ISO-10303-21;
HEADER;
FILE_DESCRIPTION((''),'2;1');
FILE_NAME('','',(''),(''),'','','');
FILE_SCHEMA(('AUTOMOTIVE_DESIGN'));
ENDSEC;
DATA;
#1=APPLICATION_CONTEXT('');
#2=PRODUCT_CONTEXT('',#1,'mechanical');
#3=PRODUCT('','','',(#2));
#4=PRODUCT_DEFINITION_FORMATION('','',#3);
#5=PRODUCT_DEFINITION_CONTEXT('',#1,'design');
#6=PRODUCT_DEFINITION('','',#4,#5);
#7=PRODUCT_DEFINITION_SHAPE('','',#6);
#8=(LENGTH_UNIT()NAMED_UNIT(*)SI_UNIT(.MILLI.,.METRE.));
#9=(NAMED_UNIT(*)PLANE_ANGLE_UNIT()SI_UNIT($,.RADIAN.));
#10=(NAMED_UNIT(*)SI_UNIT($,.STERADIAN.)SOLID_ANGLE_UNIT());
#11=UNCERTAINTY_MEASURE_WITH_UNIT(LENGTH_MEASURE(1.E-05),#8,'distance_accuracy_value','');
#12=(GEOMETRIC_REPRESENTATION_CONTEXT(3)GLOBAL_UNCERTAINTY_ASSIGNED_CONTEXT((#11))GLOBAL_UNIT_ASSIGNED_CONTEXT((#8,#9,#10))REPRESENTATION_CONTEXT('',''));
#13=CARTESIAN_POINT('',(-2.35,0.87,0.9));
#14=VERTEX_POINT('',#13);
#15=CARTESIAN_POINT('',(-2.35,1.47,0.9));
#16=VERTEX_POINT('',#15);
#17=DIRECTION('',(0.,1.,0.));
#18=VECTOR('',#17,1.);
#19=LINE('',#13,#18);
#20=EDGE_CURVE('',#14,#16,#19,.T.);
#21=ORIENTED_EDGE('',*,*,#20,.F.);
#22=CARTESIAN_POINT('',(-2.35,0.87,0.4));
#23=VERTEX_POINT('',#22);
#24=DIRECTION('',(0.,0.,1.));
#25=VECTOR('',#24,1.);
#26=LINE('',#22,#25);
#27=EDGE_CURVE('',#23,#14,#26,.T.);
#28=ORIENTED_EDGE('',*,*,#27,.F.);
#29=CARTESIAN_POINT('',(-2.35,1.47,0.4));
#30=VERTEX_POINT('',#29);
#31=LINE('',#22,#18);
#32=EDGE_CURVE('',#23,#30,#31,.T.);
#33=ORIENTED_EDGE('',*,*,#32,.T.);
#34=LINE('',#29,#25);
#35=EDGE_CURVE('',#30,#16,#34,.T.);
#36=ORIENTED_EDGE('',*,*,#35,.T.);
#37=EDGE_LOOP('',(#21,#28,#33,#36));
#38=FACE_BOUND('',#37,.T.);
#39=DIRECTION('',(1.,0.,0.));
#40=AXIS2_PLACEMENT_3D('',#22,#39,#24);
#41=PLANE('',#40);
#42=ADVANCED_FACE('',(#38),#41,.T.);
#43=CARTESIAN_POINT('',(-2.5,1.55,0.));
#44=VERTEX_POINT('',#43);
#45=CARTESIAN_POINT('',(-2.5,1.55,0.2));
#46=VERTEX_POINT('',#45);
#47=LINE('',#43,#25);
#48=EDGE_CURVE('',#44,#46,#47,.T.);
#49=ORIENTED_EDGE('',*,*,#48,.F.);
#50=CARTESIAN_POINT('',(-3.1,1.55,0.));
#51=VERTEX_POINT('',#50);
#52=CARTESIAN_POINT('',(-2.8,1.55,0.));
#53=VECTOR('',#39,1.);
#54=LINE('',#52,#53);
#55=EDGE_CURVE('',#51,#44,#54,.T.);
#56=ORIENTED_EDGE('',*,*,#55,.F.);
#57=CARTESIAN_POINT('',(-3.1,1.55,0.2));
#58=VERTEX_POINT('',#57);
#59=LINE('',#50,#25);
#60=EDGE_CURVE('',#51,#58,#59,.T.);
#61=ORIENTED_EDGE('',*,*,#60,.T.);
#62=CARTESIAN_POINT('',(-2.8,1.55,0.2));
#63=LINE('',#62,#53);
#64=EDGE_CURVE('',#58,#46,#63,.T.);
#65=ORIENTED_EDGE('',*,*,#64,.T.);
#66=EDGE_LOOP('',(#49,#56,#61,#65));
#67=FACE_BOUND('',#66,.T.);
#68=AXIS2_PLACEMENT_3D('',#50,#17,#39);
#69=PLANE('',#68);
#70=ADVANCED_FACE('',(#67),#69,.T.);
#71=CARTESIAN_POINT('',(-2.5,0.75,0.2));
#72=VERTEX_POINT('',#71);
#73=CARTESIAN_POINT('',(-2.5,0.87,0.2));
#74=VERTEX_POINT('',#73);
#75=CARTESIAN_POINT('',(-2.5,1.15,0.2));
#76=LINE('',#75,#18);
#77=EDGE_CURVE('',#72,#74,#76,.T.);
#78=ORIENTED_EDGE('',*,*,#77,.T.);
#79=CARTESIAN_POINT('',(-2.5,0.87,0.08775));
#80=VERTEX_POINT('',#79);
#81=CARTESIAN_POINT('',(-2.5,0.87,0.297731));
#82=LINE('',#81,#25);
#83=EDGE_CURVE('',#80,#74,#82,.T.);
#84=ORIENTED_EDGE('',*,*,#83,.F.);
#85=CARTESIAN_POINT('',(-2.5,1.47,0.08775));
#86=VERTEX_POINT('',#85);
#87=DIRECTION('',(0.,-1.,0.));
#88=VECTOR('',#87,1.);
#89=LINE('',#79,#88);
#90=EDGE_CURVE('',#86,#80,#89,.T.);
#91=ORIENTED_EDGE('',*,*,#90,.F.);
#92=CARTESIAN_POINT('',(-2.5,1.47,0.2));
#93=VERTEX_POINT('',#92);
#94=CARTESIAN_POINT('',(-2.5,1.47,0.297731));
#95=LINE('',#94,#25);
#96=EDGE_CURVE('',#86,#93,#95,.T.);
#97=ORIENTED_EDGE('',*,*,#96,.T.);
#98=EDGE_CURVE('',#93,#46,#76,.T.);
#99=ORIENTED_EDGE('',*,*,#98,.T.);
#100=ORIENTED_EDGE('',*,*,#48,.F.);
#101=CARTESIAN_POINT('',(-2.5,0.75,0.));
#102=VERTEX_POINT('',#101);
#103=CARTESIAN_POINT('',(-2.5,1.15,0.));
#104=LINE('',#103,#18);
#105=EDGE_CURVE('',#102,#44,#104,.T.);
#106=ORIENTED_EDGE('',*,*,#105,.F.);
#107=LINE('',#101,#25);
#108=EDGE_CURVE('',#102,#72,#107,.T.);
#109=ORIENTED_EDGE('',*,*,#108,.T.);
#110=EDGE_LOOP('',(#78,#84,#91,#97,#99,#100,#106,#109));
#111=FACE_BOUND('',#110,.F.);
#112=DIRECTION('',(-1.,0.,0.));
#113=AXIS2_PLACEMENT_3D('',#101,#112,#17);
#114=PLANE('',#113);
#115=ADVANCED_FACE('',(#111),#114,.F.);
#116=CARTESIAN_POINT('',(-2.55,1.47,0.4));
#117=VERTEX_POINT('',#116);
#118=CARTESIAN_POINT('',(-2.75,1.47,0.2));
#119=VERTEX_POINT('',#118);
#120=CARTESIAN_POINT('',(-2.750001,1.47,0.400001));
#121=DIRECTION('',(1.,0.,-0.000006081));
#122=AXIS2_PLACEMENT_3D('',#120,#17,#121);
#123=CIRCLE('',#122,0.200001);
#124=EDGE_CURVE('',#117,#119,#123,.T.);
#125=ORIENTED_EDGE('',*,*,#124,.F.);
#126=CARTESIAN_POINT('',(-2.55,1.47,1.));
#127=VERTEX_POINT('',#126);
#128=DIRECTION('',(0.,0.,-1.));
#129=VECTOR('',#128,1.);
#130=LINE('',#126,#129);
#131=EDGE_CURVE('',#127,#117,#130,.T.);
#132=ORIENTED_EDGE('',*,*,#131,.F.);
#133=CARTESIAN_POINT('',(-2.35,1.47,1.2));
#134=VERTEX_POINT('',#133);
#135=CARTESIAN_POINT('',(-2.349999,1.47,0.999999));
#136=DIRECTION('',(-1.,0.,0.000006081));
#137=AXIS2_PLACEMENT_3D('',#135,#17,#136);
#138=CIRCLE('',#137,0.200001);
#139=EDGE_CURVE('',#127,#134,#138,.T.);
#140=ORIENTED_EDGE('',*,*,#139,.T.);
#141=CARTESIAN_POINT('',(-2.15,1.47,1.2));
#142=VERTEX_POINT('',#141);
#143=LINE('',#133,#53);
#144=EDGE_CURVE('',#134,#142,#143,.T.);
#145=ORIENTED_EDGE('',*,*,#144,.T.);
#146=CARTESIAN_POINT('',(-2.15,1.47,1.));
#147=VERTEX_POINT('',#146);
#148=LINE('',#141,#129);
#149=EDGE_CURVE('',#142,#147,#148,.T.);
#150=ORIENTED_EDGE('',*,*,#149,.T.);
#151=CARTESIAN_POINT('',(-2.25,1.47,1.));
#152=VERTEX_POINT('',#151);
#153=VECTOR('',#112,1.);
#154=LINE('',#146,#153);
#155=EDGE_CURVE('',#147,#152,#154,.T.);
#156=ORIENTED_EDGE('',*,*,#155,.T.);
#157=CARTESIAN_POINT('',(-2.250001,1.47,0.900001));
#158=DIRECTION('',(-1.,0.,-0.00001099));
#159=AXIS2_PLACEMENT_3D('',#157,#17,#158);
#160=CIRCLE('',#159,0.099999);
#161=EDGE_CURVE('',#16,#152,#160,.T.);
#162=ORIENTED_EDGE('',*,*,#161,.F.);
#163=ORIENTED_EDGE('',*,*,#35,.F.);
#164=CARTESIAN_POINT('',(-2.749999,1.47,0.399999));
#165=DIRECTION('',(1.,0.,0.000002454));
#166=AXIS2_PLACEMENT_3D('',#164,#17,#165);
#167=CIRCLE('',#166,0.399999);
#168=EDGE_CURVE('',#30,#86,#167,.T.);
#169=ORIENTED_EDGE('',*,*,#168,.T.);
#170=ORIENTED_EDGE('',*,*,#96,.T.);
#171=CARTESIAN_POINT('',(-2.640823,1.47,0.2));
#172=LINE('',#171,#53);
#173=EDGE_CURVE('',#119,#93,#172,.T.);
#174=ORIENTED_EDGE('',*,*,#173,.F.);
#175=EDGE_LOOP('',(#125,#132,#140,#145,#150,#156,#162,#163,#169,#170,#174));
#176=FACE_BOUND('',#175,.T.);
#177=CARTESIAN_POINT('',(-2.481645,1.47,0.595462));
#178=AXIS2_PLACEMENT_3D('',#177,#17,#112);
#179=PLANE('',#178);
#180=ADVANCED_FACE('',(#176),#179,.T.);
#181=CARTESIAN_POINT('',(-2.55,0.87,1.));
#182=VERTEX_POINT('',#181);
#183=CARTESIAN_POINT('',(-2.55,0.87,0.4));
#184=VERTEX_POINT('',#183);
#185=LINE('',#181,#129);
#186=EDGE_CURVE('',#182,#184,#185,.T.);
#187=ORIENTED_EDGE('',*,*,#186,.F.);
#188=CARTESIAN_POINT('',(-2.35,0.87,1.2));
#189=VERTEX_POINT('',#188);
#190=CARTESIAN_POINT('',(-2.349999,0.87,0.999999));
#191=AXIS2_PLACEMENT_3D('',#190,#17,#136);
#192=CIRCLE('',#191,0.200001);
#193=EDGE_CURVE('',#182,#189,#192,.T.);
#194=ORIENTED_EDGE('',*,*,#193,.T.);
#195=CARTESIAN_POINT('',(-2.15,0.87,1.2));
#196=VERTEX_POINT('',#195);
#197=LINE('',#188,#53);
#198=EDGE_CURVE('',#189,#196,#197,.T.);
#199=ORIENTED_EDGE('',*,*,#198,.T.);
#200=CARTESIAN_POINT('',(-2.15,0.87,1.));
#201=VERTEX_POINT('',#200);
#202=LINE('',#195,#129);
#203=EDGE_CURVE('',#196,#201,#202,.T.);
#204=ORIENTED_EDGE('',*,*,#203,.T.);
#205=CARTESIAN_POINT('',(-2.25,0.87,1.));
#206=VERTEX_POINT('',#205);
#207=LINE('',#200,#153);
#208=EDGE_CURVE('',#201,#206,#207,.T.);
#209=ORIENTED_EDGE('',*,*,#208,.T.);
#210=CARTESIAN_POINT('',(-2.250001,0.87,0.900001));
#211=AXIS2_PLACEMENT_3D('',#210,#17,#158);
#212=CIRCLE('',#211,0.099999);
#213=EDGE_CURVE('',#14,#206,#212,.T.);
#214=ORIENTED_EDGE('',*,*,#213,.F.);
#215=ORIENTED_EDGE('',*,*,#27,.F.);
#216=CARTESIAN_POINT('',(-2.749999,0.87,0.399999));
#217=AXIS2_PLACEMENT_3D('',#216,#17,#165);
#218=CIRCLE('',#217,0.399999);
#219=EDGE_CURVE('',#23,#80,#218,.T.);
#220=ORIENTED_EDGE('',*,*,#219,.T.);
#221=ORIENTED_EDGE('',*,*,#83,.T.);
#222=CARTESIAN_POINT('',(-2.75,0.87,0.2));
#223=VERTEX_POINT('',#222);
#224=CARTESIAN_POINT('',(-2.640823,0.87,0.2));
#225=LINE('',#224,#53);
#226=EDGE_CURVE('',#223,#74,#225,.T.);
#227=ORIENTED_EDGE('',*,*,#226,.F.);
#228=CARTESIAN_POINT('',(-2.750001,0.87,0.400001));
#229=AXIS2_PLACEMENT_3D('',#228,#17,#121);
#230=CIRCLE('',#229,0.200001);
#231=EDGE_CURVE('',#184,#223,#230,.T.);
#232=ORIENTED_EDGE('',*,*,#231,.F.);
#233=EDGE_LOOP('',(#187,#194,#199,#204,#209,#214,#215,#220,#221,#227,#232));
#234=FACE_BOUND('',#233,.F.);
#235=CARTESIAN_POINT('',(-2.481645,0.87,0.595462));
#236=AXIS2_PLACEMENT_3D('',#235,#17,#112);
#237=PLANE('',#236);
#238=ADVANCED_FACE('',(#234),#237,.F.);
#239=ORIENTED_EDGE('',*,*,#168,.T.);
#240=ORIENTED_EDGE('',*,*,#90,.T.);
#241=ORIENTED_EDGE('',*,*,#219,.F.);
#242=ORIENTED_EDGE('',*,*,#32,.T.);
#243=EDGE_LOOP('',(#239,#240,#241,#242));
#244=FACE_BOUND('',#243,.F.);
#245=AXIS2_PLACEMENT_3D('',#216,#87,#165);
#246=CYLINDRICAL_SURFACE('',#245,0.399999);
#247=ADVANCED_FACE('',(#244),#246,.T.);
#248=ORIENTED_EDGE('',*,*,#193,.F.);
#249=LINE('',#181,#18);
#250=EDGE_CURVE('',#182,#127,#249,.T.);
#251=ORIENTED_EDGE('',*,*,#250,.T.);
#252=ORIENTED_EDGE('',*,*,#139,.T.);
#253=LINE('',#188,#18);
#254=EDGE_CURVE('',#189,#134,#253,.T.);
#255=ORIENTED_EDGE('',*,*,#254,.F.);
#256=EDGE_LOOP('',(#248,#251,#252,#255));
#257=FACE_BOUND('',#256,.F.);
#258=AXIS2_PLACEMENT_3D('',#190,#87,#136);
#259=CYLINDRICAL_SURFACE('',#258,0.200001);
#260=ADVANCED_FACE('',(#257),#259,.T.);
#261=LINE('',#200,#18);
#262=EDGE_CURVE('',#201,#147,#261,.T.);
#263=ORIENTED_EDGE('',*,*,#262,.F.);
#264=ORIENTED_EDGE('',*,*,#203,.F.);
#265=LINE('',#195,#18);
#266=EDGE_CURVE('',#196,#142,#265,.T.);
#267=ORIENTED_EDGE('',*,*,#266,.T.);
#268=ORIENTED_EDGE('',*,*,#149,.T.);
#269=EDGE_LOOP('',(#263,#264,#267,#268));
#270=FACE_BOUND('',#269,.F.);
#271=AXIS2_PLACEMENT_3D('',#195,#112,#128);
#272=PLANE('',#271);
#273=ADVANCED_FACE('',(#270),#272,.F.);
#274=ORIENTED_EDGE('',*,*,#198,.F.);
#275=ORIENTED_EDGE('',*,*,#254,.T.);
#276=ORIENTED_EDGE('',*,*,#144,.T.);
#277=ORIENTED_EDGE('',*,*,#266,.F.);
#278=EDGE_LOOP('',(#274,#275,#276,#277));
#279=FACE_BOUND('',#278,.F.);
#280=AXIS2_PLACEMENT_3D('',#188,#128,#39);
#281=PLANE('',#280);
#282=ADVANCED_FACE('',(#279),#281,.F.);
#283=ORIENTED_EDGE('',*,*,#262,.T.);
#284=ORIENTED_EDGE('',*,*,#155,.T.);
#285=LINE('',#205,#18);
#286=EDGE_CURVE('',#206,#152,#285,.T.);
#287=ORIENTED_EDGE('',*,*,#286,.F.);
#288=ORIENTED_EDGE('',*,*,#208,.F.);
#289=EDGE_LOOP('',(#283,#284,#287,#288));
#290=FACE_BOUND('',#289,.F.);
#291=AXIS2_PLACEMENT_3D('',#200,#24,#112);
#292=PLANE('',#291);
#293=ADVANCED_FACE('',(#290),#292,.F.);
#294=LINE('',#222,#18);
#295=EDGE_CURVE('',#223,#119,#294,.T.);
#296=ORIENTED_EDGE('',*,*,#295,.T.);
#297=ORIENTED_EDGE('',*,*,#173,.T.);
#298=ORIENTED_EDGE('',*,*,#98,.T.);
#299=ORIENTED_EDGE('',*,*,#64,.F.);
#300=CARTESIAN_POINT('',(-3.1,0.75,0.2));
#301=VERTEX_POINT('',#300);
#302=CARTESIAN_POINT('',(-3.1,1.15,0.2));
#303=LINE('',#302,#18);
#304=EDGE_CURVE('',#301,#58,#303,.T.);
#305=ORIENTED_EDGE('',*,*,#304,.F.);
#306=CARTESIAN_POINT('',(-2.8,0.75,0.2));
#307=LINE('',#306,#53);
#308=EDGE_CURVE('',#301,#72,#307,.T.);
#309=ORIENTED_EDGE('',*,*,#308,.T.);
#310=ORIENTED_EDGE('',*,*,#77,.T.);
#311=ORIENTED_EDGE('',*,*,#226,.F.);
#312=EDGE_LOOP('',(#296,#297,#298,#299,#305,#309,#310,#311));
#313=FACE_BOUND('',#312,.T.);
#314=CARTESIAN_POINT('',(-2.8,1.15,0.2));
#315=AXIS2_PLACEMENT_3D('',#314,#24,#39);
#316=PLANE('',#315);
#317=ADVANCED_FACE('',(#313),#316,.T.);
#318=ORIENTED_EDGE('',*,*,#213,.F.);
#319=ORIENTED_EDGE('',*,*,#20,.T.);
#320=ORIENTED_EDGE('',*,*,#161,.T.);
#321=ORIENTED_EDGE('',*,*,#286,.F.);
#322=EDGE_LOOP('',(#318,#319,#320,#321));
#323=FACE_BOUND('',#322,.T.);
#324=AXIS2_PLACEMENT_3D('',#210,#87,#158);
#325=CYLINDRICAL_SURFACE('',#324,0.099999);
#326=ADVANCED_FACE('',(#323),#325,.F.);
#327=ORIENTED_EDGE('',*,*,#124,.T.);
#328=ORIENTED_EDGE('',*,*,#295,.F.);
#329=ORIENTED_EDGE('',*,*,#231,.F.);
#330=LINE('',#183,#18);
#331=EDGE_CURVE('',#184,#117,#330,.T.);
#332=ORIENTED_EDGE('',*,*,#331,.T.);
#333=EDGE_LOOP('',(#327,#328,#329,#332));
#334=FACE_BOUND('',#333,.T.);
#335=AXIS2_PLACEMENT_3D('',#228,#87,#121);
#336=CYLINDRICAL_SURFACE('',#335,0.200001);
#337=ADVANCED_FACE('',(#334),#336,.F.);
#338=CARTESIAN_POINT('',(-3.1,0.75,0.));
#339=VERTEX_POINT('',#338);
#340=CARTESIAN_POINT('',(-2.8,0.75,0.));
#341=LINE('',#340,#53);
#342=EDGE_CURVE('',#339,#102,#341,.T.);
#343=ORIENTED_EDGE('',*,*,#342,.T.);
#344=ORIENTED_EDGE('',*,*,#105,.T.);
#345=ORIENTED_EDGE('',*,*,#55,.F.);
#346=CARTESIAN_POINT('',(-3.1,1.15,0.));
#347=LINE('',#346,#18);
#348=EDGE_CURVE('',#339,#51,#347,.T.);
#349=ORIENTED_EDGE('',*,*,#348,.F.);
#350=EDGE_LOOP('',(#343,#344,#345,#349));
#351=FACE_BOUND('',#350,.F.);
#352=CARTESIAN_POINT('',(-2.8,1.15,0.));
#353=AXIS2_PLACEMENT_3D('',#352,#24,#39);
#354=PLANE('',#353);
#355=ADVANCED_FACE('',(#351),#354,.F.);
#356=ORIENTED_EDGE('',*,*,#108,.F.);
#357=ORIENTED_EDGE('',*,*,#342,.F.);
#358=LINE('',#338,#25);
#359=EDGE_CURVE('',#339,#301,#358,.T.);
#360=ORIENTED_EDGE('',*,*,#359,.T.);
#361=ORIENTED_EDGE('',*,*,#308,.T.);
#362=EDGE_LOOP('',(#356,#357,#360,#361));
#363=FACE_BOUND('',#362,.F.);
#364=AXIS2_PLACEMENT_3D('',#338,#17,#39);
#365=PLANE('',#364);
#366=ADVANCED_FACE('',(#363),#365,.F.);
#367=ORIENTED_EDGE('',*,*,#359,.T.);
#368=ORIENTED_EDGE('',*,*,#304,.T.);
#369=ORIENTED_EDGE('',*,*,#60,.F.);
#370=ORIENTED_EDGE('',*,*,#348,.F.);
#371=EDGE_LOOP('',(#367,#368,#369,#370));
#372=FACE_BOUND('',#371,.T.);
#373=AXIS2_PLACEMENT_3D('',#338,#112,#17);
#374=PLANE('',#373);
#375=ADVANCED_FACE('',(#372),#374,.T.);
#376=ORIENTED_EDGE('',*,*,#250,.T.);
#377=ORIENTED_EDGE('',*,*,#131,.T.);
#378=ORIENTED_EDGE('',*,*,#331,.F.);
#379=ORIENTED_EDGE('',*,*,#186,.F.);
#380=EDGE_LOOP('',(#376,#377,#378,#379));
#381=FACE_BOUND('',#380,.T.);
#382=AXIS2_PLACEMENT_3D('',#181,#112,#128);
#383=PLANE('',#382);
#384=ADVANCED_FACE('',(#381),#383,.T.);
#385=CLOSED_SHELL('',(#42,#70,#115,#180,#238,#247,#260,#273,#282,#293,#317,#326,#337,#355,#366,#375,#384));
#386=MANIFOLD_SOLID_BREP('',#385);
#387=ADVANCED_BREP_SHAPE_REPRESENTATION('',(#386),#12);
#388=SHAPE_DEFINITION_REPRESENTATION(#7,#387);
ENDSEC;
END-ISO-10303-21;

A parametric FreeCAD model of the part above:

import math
import FreeCAD as App
import Part
import Sketcher
from FreeCAD import Vector
Q = App.Units.Quantity

doc = App.newDocument("Part")
body = doc.addObject("PartDesign::Body", "Body")

sketch1 = doc.addObject("Sketcher::SketchObject", "Sketch")
body.addObject(sketch1)
sketch1.AttachmentSupport = (doc.XY_Plane, [""])
sketch1.MapMode = "FlatFace"
sketch1.addGeometry(Part.LineSegment(Vector(-3.1, 1.55, 0), Vector(-3.1, 0.75, 0)), False)
sketch1.addGeometry(Part.LineSegment(Vector(-3.1, 0.75, 0), Vector(-2.5, 0.75, 0)), False)
sketch1.addGeometry(Part.LineSegment(Vector(-2.5, 0.75, 0), Vector(-2.5, 1.55, 0)), False)
sketch1.addGeometry(Part.LineSegment(Vector(-2.5, 1.55, 0), Vector(-3.1, 1.55, 0)), False)
sketch1.addConstraint(Sketcher.Constraint("Coincident", 0, 2, 1, 1))
sketch1.addConstraint(Sketcher.Constraint("Coincident", 1, 2, 2, 1))
sketch1.addConstraint(Sketcher.Constraint("Coincident", 2, 2, 3, 1))
sketch1.addConstraint(Sketcher.Constraint("Coincident", 3, 2, 0, 1))
sketch1.addConstraint(Sketcher.Constraint("Vertical", 0))
sketch1.addConstraint(Sketcher.Constraint("Horizontal", 1))
sketch1.addConstraint(Sketcher.Constraint("Vertical", 2))
sketch1.addConstraint(Sketcher.Constraint("Horizontal", 3))
sketch1.addConstraint(Sketcher.Constraint("DistanceX", 1, 1, 1, 2, Q("0.6 mm")))
sketch1.addConstraint(Sketcher.Constraint("DistanceY", 0, 2, 0, 1, Q("0.8 mm")))
sketch1.addConstraint(Sketcher.Constraint("DistanceX", 0, 2, -1, 1, Q("3.1 mm")))
sketch1.addConstraint(Sketcher.Constraint("DistanceY", -1, 1, 0, 2, Q("0.75 mm")))
pad1 = doc.addObject("PartDesign::Pad", "Pad")
body.addObject(pad1)
pad1.Profile = sketch1
pad1.Length = 0.2
body2 = doc.addObject("PartDesign::Body", "Body001")

sketch2 = doc.addObject("Sketcher::SketchObject", "Sketch001")
body2.addObject(sketch2)
sketch2.AttachmentSupport = (doc.getObject("XZ_Plane001"), [""])
sketch2.MapMode = "FlatFace"
sketch2.addGeometry(Part.ArcOfCircle(Part.Circle(Vector(3.499999, 0.999999, 0), Vector(0, 0, 1), 0.200001), math.radians(0.000348), math.radians(89.999652)), False)
sketch2.addGeometry(Part.LineSegment(Vector(3.5, 1.2, 0), Vector(3.3, 1.2, 0)), False)
sketch2.addGeometry(Part.LineSegment(Vector(3.3, 1.2, 0), Vector(3.3, 1, 0)), False)
sketch2.addGeometry(Part.LineSegment(Vector(3.3, 1, 0), Vector(3.4, 1, 0)), False)
sketch2.addGeometry(Part.ArcOfCircle(Part.Circle(Vector(3.400001, 0.900001, 0), Vector(0, 0, 1), 0.099999), math.radians(-0.00063), math.radians(90.00063)), False)
sketch2.addGeometry(Part.LineSegment(Vector(3.5, 0.9, 0), Vector(3.5, 0.4, 0)), False)
sketch2.addGeometry(Part.ArcOfCircle(Part.Circle(Vector(3.899999, 0.399999, 0), Vector(0, 0, 1), 0.399999), math.radians(179.999859), math.radians(270.000141)), False)
sketch2.addGeometry(Part.LineSegment(Vector(3.9, 0, 0), Vector(4, 0, 0)), False)
sketch2.addGeometry(Part.LineSegment(Vector(4, 0, 0), Vector(4, 0.2, 0)), False)
sketch2.addGeometry(Part.LineSegment(Vector(4, 0.2, 0), Vector(3.9, 0.2, 0)), False)
sketch2.addGeometry(Part.ArcOfCircle(Part.Circle(Vector(3.900001, 0.400001, 0), Vector(0, 0, 1), 0.200001), math.radians(-179.999652), math.radians(-90.000348)), False)
sketch2.addGeometry(Part.LineSegment(Vector(3.7, 0.4, 0), Vector(3.7, 1, 0)), False)
sketch2.addConstraint(Sketcher.Constraint("Coincident", 0, 2, 1, 1))
sketch2.addConstraint(Sketcher.Constraint("Coincident", 1, 2, 2, 1))
sketch2.addConstraint(Sketcher.Constraint("Coincident", 2, 2, 3, 1))
sketch2.addConstraint(Sketcher.Constraint("Coincident", 3, 2, 4, 2))
sketch2.addConstraint(Sketcher.Constraint("Coincident", 4, 1, 5, 1))
sketch2.addConstraint(Sketcher.Constraint("Coincident", 5, 2, 6, 1))
sketch2.addConstraint(Sketcher.Constraint("Coincident", 6, 2, 7, 1))
sketch2.addConstraint(Sketcher.Constraint("Coincident", 7, 2, 8, 1))
sketch2.addConstraint(Sketcher.Constraint("Coincident", 8, 2, 9, 1))
sketch2.addConstraint(Sketcher.Constraint("Coincident", 9, 2, 10, 2))
sketch2.addConstraint(Sketcher.Constraint("Coincident", 10, 1, 11, 1))
sketch2.addConstraint(Sketcher.Constraint("Coincident", 11, 2, 0, 1))
sketch2.addConstraint(Sketcher.Constraint("Horizontal", 1))
sketch2.addConstraint(Sketcher.Constraint("Vertical", 2))
sketch2.addConstraint(Sketcher.Constraint("Horizontal", 3))
sketch2.addConstraint(Sketcher.Constraint("Vertical", 5))
sketch2.addConstraint(Sketcher.Constraint("Horizontal", 7))
sketch2.addConstraint(Sketcher.Constraint("Vertical", 8))
sketch2.addConstraint(Sketcher.Constraint("Horizontal", 9))
sketch2.addConstraint(Sketcher.Constraint("Vertical", 11))
sketch2.addConstraint(Sketcher.Constraint("Coincident", 10, 3, 6, 3))
sketch2.addConstraint(Sketcher.Constraint("Equal", 0, 10))
sketch2.addConstraint(Sketcher.Constraint("PointOnObject", 6, 2, -1))
sketch2.addConstraint(Sketcher.Constraint("Horizontal", 0, 3, 2, 2))
sketch2.addConstraint(Sketcher.Constraint("Horizontal", 10, 3, 5, 2))
sketch2.addConstraint(Sketcher.Constraint("Horizontal", 5, 2, 10, 1))
sketch2.addConstraint(Sketcher.Constraint("Horizontal", 3, 2, 11, 2))
sketch2.addConstraint(Sketcher.Constraint("Vertical", 4, 3, 3, 2))
sketch2.addConstraint(Sketcher.Constraint("Vertical", 0, 2, 4, 1))
sketch2.addConstraint(Sketcher.Constraint("Vertical", 10, 3, 6, 2))
sketch2.addConstraint(Sketcher.Constraint("Vertical", 6, 2, 9, 2))
sketch2.addConstraint(Sketcher.Constraint("Equal", 3, 7))
sketch2.addConstraint(Sketcher.Constraint("Equal", 1, 2))
sketch2.addConstraint(Sketcher.Constraint("Equal", 2, 8))
sketch2.addConstraint(Sketcher.Constraint("Radius", 0, Q("0.200001 mm")))
sketch2.addConstraint(Sketcher.Constraint("Radius", 4, Q("0.099999 mm")))
sketch2.addConstraint(Sketcher.Constraint("DistanceY", 5, 2, 5, 1, Q("0.5 mm")))
sketch2.addConstraint(Sketcher.Constraint("DistanceY", 11, 1, 11, 2, Q("0.6 mm")))
sketch2.addConstraint(Sketcher.Constraint("DistanceX", -1, 1, 7, 2, Q("4 mm")))
pad2 = doc.addObject("PartDesign::Pad", "Pad001")
body2.addObject(pad2)
pad2.Profile = sketch2
pad2.Length = 0.6
body3 = doc.addObject("PartDesign::Body", "Body002")
doc.recompute()

body2.Placement = App.Placement(Vector(1.15, 0.87, 0), App.Rotation(Vector(0, 0, 1), 180))
boolean = doc.addObject("PartDesign::Boolean", "Boolean")
body3.addObject(boolean)
boolean.Type = "Fuse"
boolean.addObjects([body2])
doc.recompute()

boolean2 = doc.addObject("PartDesign::Boolean", "Boolean001")
body3.addObject(boolean2)
boolean2.Type = "Fuse"
boolean2.addObjects([body])

doc.recompute()
